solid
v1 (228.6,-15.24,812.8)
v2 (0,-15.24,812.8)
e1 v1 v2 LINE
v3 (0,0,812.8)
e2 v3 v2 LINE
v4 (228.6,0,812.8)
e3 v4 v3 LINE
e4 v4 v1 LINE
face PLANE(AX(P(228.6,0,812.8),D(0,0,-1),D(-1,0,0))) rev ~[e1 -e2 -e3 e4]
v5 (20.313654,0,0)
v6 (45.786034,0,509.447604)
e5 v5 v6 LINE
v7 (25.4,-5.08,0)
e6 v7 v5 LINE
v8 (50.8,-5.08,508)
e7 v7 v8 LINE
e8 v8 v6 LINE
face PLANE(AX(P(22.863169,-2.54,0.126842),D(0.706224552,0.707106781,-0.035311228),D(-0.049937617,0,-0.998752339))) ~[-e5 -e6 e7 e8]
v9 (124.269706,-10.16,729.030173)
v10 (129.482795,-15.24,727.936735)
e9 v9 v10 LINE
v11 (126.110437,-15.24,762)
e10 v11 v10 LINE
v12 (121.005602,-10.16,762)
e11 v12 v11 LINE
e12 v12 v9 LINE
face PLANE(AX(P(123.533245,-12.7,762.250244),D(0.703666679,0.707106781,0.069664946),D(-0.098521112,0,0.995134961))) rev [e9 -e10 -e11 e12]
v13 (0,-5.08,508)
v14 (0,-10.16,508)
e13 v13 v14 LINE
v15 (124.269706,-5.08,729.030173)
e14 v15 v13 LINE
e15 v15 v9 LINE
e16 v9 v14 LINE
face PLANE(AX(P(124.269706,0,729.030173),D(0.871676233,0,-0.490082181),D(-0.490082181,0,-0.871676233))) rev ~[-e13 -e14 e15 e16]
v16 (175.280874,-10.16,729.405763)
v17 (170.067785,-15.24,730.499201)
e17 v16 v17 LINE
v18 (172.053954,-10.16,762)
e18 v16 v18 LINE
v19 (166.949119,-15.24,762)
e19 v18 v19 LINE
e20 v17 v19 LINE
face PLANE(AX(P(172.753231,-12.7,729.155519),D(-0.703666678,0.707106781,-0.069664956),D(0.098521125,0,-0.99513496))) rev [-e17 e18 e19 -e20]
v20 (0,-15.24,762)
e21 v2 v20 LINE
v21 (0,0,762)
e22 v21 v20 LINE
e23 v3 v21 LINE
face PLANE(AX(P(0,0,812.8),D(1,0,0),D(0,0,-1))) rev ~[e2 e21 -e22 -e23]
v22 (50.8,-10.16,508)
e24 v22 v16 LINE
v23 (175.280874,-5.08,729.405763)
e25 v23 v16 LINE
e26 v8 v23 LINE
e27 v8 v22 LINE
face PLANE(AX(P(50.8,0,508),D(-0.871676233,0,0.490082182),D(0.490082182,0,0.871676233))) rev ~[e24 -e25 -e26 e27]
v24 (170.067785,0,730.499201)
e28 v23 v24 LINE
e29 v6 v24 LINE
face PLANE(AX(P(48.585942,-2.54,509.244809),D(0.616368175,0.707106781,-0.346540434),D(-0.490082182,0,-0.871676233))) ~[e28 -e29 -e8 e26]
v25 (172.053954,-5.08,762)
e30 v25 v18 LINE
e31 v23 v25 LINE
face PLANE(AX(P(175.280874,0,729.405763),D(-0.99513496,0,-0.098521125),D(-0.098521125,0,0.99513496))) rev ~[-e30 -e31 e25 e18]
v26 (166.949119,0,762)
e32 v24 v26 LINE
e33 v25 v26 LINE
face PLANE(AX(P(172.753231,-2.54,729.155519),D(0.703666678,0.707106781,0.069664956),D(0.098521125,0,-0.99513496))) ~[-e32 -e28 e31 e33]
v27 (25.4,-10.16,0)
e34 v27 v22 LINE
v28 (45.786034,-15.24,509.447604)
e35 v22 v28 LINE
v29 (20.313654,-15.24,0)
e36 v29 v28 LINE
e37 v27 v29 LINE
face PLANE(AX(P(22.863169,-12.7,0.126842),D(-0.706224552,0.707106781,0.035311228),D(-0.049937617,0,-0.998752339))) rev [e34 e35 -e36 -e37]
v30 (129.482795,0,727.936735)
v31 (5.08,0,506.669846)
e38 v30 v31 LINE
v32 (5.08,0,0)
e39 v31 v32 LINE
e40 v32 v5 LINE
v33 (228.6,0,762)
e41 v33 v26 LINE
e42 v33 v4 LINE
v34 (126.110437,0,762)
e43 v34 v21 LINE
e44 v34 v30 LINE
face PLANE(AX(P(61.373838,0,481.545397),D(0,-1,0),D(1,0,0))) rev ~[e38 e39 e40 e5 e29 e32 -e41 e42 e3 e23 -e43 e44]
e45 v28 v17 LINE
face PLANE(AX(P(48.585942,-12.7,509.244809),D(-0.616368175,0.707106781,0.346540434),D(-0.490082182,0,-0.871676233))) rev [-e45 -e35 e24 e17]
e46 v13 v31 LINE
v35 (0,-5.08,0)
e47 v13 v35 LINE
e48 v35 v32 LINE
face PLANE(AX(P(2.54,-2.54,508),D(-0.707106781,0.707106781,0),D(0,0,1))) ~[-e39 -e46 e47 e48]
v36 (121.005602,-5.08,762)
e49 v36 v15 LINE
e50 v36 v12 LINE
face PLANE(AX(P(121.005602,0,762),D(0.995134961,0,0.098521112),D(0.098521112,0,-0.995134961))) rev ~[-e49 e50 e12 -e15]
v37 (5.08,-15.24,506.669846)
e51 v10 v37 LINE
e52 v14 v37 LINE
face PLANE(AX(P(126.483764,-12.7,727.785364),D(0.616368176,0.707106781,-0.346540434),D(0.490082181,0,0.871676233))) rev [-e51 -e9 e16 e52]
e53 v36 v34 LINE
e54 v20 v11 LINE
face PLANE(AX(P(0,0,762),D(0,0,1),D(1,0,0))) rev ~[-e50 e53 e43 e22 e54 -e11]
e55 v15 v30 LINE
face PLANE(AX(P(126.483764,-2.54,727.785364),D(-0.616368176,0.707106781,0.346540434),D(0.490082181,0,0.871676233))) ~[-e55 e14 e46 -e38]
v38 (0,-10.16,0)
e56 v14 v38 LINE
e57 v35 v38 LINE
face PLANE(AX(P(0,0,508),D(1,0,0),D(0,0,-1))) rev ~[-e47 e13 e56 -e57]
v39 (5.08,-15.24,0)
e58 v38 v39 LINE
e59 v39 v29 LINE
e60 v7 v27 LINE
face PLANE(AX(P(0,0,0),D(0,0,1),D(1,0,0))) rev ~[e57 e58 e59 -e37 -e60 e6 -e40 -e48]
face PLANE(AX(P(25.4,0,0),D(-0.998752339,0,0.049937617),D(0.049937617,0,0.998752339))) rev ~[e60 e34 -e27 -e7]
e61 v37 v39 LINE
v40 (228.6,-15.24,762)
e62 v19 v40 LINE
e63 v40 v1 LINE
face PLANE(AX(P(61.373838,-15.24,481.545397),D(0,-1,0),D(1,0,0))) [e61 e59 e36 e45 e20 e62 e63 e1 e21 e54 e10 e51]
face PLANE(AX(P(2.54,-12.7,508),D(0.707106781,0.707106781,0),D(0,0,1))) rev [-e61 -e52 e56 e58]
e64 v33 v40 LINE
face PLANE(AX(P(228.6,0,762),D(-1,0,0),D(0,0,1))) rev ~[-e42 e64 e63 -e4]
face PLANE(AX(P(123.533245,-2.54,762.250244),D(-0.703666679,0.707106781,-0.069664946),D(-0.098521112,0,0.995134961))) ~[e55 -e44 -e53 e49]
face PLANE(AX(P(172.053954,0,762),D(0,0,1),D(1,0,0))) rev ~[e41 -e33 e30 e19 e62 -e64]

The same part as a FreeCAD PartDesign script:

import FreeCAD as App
import Part
import Sketcher
Q = App.Units.Quantity


def edges_at(feature, points):
    """Names of the edges that pass closest to the given points."""
    edges = feature.Shape.Edges
    near = lambda p: min(range(len(edges)), key=lambda i: edges[i].distToShape(Part.Vertex(*p))[0])
    return sorted({f"Edge{near(p) + 1}" for p in points})


def add_polygon(sketch, points):
    """Adds a closed chain of lines whose ends are joined by coincident constraints."""
    first, n = sketch.GeometryCount, len(points)
    for a, b in zip(points, points[1:] + points[:1]):
        sketch.addGeometry(Part.LineSegment(App.Vector(*a, 0), App.Vector(*b, 0)), False)
    for i in range(n):
        sketch.addConstraint(Sketcher.Constraint("Coincident", first + i, 2, first + (i + 1) % n, 1))

doc = App.newDocument("Part")
body = doc.addObject("PartDesign::Body", "Body")

sketch1 = body.newObject("Sketcher::SketchObject", "Sketch")
sketch1.AttachmentSupport = (doc.getObject("XZ_Plane"), [""])
sketch1.MapMode = "FlatFace"
add_polygon(sketch1, [(0, 508), (0, 0), (25, 0), (51, 508), (175, 729), (172, 762), (229, 762), (229, 813), (0, 813), (0, 762), (121, 762), (124, 729)])
sketch1.addConstraint([
    Sketcher.Constraint("Vertical", 0),
    Sketcher.Constraint("Horizontal", 1),
    Sketcher.Constraint("Horizontal", 5),
    Sketcher.Constraint("Vertical", 6),
    Sketcher.Constraint("Horizontal", 7),
    Sketcher.Constraint("Vertical", 8),
    Sketcher.Constraint("Horizontal", 9),
    Sketcher.Constraint("Coincident", 0, 2, -1, 1),
    Sketcher.Constraint("PointOnObject", 7, 2, -2),
    Sketcher.Constraint("Parallel", 4, 10),
    Sketcher.Constraint("Parallel", 3, 11),
    Sketcher.Constraint("Horizontal", 5, 2, 8, 2),
    Sketcher.Constraint("Horizontal", 2, 2, 11, 2),
    Sketcher.Constraint("DistanceX", 1, 1, 1, 2, Q("1 in")),
    Sketcher.Constraint("DistanceX", 7, 2, 7, 1, Q("9 in")),
    Sketcher.Constraint("DistanceY", 0, 2, 0, 1, Q("20 in")),
    Sketcher.Constraint("DistanceY", 6, 1, 6, 2, Q("2 in")),
    Sketcher.Constraint("Distance", 3, Q("10 in")),
    Sketcher.Constraint("DistanceX", -1, 1, 2, 2, Q("2 in")),
    Sketcher.Constraint("DistanceY", -1, 1, 4, 2, Q("30 in")),
    Sketcher.Constraint("DistanceX", 9, 1, 9, 2, Q("4.7640001 in")),
    Sketcher.Constraint("Distance", 10, 33.131011),
    Sketcher.Constraint("DistanceX", 5, 1, 5, 2, 56.546046),
])
pad1 = body.newObject("PartDesign::Pad", "Pad")
pad1.Profile = sketch1
pad1.Length = Q("0.6 in")
doc.recompute()

chamfer = body.newObject("PartDesign::Chamfer", "Chamfer")
chamfer.Base = (pad1, edges_at(pad1, [
    (113.04, -15.24, 618.703),
    (38.1, -15.24, 254),
    (0, -15.24, 254),
    (62.135, -15.24, 618.515),
    (0, 0, 254),
    (62.135, 0, 618.515),
    (38.1, 0, 254),
    (113.04, 0, 618.703),
    (122.638, 0, 745.515),
    (173.667, 0, 745.703),
    (173.667, -15.24, 745.703),
    (122.638, -15.24, 745.515),
]))
chamfer.Size = Q("0.2 in")

doc.recompute()
